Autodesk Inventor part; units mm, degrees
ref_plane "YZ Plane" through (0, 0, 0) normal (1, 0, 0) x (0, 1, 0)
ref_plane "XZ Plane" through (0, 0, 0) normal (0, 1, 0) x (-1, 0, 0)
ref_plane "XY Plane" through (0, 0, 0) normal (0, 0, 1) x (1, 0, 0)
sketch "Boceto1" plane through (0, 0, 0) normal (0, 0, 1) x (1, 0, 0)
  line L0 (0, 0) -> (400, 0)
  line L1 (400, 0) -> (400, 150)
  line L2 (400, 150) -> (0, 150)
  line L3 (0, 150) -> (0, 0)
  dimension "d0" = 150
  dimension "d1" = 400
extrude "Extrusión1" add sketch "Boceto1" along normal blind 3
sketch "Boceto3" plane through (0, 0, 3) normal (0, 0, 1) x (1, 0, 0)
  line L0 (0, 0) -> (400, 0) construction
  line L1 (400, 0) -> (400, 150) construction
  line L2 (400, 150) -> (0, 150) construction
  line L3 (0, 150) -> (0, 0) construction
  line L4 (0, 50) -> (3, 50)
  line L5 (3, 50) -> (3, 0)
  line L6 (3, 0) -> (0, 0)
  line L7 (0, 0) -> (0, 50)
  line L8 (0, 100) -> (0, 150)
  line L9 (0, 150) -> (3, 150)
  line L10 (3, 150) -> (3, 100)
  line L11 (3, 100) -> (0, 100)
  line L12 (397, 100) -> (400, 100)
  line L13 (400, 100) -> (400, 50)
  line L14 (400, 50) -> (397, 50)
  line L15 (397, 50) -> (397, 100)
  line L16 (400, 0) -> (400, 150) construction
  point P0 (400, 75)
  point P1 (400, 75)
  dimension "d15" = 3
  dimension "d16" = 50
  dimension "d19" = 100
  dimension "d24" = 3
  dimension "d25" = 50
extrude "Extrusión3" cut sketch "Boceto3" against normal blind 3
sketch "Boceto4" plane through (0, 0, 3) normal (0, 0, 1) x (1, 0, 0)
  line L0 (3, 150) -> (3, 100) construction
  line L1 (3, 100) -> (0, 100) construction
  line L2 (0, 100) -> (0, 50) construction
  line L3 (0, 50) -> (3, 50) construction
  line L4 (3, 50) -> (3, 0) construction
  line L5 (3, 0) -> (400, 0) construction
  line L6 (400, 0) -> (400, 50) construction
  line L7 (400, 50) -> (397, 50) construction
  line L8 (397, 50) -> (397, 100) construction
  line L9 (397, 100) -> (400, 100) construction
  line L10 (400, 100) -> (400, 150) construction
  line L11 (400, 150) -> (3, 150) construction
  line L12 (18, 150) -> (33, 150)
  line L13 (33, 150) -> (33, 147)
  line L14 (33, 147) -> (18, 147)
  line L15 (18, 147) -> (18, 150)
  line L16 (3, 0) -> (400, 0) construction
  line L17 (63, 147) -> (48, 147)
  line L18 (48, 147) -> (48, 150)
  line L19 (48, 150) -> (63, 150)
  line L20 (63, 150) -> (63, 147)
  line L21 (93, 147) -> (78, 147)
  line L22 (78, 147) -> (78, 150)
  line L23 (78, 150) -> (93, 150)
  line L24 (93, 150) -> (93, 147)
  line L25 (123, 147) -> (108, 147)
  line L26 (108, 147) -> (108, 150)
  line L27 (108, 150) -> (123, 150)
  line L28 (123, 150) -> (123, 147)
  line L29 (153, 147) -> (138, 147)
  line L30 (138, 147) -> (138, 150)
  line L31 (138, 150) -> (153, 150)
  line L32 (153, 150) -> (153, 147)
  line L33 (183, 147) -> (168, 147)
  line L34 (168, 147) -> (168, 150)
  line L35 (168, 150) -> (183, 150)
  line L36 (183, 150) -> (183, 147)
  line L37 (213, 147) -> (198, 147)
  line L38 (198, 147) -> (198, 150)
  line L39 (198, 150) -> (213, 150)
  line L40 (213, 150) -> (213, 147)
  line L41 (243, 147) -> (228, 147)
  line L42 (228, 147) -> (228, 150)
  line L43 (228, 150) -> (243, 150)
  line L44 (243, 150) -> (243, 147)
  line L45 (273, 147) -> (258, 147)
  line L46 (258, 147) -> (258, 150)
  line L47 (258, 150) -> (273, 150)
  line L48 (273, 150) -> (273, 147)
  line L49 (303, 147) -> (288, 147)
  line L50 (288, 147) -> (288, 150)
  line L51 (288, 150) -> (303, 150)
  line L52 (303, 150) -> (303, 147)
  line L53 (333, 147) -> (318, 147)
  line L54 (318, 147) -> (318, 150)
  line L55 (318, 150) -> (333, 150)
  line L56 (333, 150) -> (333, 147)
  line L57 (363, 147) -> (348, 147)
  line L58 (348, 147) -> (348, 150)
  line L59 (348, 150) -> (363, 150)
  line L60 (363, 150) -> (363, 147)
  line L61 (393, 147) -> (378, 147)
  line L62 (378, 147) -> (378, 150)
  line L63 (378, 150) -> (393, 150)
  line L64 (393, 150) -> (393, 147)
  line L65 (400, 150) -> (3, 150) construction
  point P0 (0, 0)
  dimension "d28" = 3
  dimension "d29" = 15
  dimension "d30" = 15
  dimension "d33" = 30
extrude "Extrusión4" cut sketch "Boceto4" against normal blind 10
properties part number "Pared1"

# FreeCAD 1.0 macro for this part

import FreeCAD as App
import Part
import Sketcher


def add_polygon(sketch, points):
    """Adds a closed chain of lines whose ends are joined by coincident constraints."""
    first, n = sketch.GeometryCount, len(points)
    for a, b in zip(points, points[1:] + points[:1]):
        sketch.addGeometry(Part.LineSegment(App.Vector(*a, 0), App.Vector(*b, 0)), False)
    for i in range(n):
        sketch.addConstraint(Sketcher.Constraint("Coincident", first + i, 2, first + (i + 1) % n, 1))

doc = App.newDocument("Part")
body = doc.addObject("PartDesign::Body", "Body")

# Sketch on XY plane
sketch1 = body.newObject("Sketcher::SketchObject", "Sketch")
sketch1.AttachmentSupport = (doc.getObject("XY_Plane"), [""])
sketch1.MapMode = "FlatFace"
add_polygon(sketch1, [(0, 150), (0, 0), (400, 0), (400, 150)])  # lines 0-3
sketch1.addConstraint([
    Sketcher.Constraint("Vertical", 0),
    Sketcher.Constraint("Horizontal", 1),
    Sketcher.Constraint("Vertical", 2),
    Sketcher.Constraint("Horizontal", 3),
    Sketcher.Constraint("Coincident", 0, 2, -1, 1),
    Sketcher.Constraint("DistanceX", 1, 1, 1, 2, 400.0),
    Sketcher.Constraint("DistanceY", 0, 2, 0, 1, 150.0),
])
pad1 = body.newObject("PartDesign::Pad", "Pad")
pad1.Profile = sketch1
pad1.Length = 3

# Sketch on XY plane
sketch2 = body.newObject("Sketcher::SketchObject", "Sketch001")
sketch2.AttachmentSupport = (doc.getObject("XY_Plane"), [""])
sketch2.MapMode = "FlatFace"
sketch2.AttachmentOffset = App.Placement(App.Vector(0, 0, 3), App.Rotation())
add_polygon(sketch2, [(3, 50), (0, 50), (0, 0), (3, 0)])  # lines 0-3
add_polygon(sketch2, [(0, 150), (0, 100), (3, 100), (3, 150)])  # lines 4-7
add_polygon(sketch2, [(400, 100), (397, 100), (397, 50), (400, 50)])  # lines 8-11
sketch2.addConstraint([
    Sketcher.Constraint("Horizontal", 0),
    Sketcher.Constraint("Vertical", 1),
    Sketcher.Constraint("Horizontal", 2),
    Sketcher.Constraint("Vertical", 3),
    Sketcher.Constraint("Vertical", 4),
    Sketcher.Constraint("Horizontal", 5),
    Sketcher.Constraint("Vertical", 6),
    Sketcher.Constraint("Horizontal", 7),
    Sketcher.Constraint("Horizontal", 8),
    Sketcher.Constraint("Vertical", 9),
    Sketcher.Constraint("Horizontal", 10),
    Sketcher.Constraint("Vertical", 11),
    Sketcher.Constraint("Coincident", 1, 2, -1, 1),
    Sketcher.Constraint("PointOnObject", 4, 2, -2),
    Sketcher.Constraint("Horizontal", 5, 2, 8, 2),
    Sketcher.Constraint("Horizontal", 3, 2, 9, 2),
    Sketcher.Constraint("Vertical", 3, 2, 5, 2),
    Sketcher.Constraint("Equal", 7, 8),
    Sketcher.Constraint("Equal", 3, 4),
    Sketcher.Constraint("Equal", 6, 9),
    Sketcher.Constraint("DistanceX", 0, 2, 0, 1, 3.0),
    Sketcher.Constraint("DistanceY", 1, 2, 1, 1, 50.0),
    Sketcher.Constraint("DistanceX", -1, 1, 8, 2, 397.0),
])
pocket1 = body.newObject("PartDesign::Pocket", "Pocket")
pocket1.Profile = sketch2
pocket1.Length = 3

# Sketch on XY plane
sketch3 = body.newObject("Sketcher::SketchObject", "Sketch002")
sketch3.AttachmentSupport = (doc.getObject("XY_Plane"), [""])
sketch3.MapMode = "FlatFace"
sketch3.AttachmentOffset = App.Placement(App.Vector(0, 0, 3), App.Rotation())
add_polygon(sketch3, [(33, 150), (18, 150), (18, 147), (33, 147)])  # lines 0-3
add_polygon(sketch3, [(48, 147), (63, 147), (63, 150), (48, 150)])  # lines 4-7
add_polygon(sketch3, [(78, 147), (93, 147), (93, 150), (78, 150)])  # lines 8-11
add_polygon(sketch3, [(108, 147), (123, 147), (123, 150), (108, 150)])  # lines 12-15
add_polygon(sketch3, [(138, 147), (153, 147), (153, 150), (138, 150)])  # lines 16-19
add_polygon(sketch3, [(168, 147), (183, 147), (183, 150), (168, 150)])  # lines 20-23
add_polygon(sketch3, [(198, 147), (213, 147), (213, 150), (198, 150)])  # lines 24-27
add_polygon(sketch3, [(228, 147), (243, 147), (243, 150), (228, 150)])  # lines 28-31
add_polygon(sketch3, [(258, 147), (273, 147), (273, 150), (258, 150)])  # lines 32-35
add_polygon(sketch3, [(288, 147), (303, 147), (303, 150), (288, 150)])  # lines 36-39
add_polygon(sketch3, [(318, 147), (333, 147), (333, 150), (318, 150)])  # lines 40-43
add_polygon(sketch3, [(348, 147), (363, 147), (363, 150), (348, 150)])  # lines 44-47
add_polygon(sketch3, [(378, 147), (393, 147), (393, 150), (378, 150)])  # lines 48-51
sketch3.addConstraint([
    Sketcher.Constraint("Horizontal", 0),
    Sketcher.Constraint("Vertical", 1),
    Sketcher.Constraint("Horizontal", 2),
    Sketcher.Constraint("Vertical", 3),
    Sketcher.Constraint("Horizontal", 4),
    Sketcher.Constraint("Vertical", 5),
    Sketcher.Constraint("Horizontal", 6),
    Sketcher.Constraint("Vertical", 7),
    Sketcher.Constraint("Horizontal", 8),
    Sketcher.Constraint("Vertical", 9),
    Sketcher.Constraint("Horizontal", 10),
    Sketcher.Constraint("Vertical", 11),
    Sketcher.Constraint("Horizontal", 12),
    Sketcher.Constraint("Vertical", 13),
    Sketcher.Constraint("Horizontal", 14),
    Sketcher.Constraint("Vertical", 15),
    Sketcher.Constraint("Horizontal", 16),
    Sketcher.Constraint("Vertical", 17),
    Sketcher.Constraint("Horizontal", 18),
    Sketcher.Constraint("Vertical", 19),
    Sketcher.Constraint("Horizontal", 20),
    Sketcher.Constraint("Vertical", 21),
    Sketcher.Constraint("Horizontal", 22),
    Sketcher.Constraint("Vertical", 23),
    Sketcher.Constraint("Horizontal", 24),
    Sketcher.Constraint("Vertical", 25),
    Sketcher.Constraint("Horizontal", 26),
    Sketcher.Constraint("Vertical", 27),
    Sketcher.Constraint("Horizontal", 28),
    Sketcher.Constraint("Vertical", 29),
    Sketcher.Constraint("Horizontal", 30),
    Sketcher.Constraint("Vertical", 31),
    Sketcher.Constraint("Horizontal", 32),
    Sketcher.Constraint("Vertical", 33),
    Sketcher.Constraint("Horizontal", 34),
    Sketcher.Constraint("Vertical", 35),
    Sketcher.Constraint("Horizontal", 36),
    Sketcher.Constraint("Vertical", 37),
    Sketcher.Constraint("Horizontal", 38),
    Sketcher.Constraint("Vertical", 39),
    Sketcher.Constraint("Horizontal", 40),
    Sketcher.Constraint("Vertical", 41),
    Sketcher.Constraint("Horizontal", 42),
    Sketcher.Constraint("Vertical", 43),
    Sketcher.Constraint("Horizontal", 44),
    Sketcher.Constraint("Vertical", 45),
    Sketcher.Constraint("Horizontal", 46),
    Sketcher.Constraint("Vertical", 47),
    Sketcher.Constraint("Horizontal", 48),
    Sketcher.Constraint("Vertical", 49),
    Sketcher.Constraint("Horizontal", 50),
    Sketcher.Constraint("Vertical", 51),
    Sketcher.Constraint("Horizontal", 2, 2, 4, 2),
    Sketcher.Constraint("Horizontal", 3, 2, 5, 2),
    Sketcher.Constraint("Horizontal", 7, 2, 8, 2),
    Sketcher.Constraint("Horizontal", 6, 2, 9, 2),
    Sketcher.Constraint("Horizontal", 11, 2, 12, 2),
    Sketcher.Constraint("Horizontal", 10, 2, 13, 2),
    Sketcher.Constraint("Horizontal", 15, 2, 16, 2),
    Sketcher.Constraint("Horizontal", 14, 2, 17, 2),
    Sketcher.Constraint("Horizontal", 19, 2, 20, 2),
    Sketcher.Constraint("Horizontal", 18, 2, 21, 2),
    Sketcher.Constraint("Horizontal", 23, 2, 24, 2),
    Sketcher.Constraint("Horizontal", 22, 2, 25, 2),
    Sketcher.Constraint("Horizontal", 27, 2, 28, 2),
    Sketcher.Constraint("Horizontal", 26, 2, 29, 2),
    Sketcher.Constraint("Horizontal", 31, 2, 32, 2),
    Sketcher.Constraint("Horizontal", 30, 2, 33, 2),
    Sketcher.Constraint("Horizontal", 35, 2, 36, 2),
    Sketcher.Constraint("Horizontal", 34, 2, 37, 2),
    Sketcher.Constraint("Horizontal", 39, 2, 40, 2),
    Sketcher.Constraint("Horizontal", 38, 2, 41, 2),
    Sketcher.Constraint("Horizontal", 43, 2, 44, 2),
    Sketcher.Constraint("Horizontal", 42, 2, 45, 2),
    Sketcher.Constraint("Horizontal", 47, 2, 48, 2),
    Sketcher.Constraint("Horizontal", 46, 2, 49, 2),
    Sketcher.Constraint("Equal", 2, 4),
    Sketcher.Constraint("Equal", 6, 8),
    Sketcher.Constraint("Equal", 10, 12),
    Sketcher.Constraint("Equal", 14, 16),
    Sketcher.Constraint("Equal", 18, 20),
    Sketcher.Constraint("Equal", 22, 24),
    Sketcher.Constraint("Equal", 26, 28),
    Sketcher.Constraint("Equal", 30, 32),
    Sketcher.Constraint("Equal", 34, 36),
    Sketcher.Constraint("Equal", 38, 40),
    Sketcher.Constraint("Equal", 42, 44),
    Sketcher.Constraint("Equal", 46, 48),
    Sketcher.Constraint("DistanceX", 0, 2, 0, 1, 15.0),
    Sketcher.Constraint("DistanceY", 1, 2, 1, 1, 3.0),
    Sketcher.Constraint("DistanceX", 2, 2, 4, 2, 30.0),
    Sketcher.Constraint("DistanceX", 4, 2, 8, 2, 30.0),
    Sketcher.Constraint("DistanceX", 8, 2, 12, 2, 30.0),
    Sketcher.Constraint("DistanceX", 12, 2, 16, 2, 30.0),
    Sketcher.Constraint("DistanceX", 16, 2, 20, 2, 30.0),
    Sketcher.Constraint("DistanceX", 20, 2, 24, 2, 30.0),
    Sketcher.Constraint("DistanceX", 24, 2, 28, 2, 30.0),
    Sketcher.Constraint("DistanceX", 28, 2, 32, 2, 30.0),
    Sketcher.Constraint("DistanceX", 32, 2, 36, 2, 30.0),
    Sketcher.Constraint("DistanceX", 36, 2, 40, 2, 30.0),
    Sketcher.Constraint("DistanceX", 40, 2, 44, 2, 30.0),
    Sketcher.Constraint("DistanceX", 44, 2, 48, 2, 30.0),
    Sketcher.Constraint("DistanceX", -1, 1, 0, 2, 18.0),
    Sketcher.Constraint("DistanceY", -1, 1, 0, 2, 150.0),
])
pocket2 = body.newObject("PartDesign::Pocket", "Pocket001")
pocket2.Profile = sketch3
pocket2.Length = 10

doc.recompute()
